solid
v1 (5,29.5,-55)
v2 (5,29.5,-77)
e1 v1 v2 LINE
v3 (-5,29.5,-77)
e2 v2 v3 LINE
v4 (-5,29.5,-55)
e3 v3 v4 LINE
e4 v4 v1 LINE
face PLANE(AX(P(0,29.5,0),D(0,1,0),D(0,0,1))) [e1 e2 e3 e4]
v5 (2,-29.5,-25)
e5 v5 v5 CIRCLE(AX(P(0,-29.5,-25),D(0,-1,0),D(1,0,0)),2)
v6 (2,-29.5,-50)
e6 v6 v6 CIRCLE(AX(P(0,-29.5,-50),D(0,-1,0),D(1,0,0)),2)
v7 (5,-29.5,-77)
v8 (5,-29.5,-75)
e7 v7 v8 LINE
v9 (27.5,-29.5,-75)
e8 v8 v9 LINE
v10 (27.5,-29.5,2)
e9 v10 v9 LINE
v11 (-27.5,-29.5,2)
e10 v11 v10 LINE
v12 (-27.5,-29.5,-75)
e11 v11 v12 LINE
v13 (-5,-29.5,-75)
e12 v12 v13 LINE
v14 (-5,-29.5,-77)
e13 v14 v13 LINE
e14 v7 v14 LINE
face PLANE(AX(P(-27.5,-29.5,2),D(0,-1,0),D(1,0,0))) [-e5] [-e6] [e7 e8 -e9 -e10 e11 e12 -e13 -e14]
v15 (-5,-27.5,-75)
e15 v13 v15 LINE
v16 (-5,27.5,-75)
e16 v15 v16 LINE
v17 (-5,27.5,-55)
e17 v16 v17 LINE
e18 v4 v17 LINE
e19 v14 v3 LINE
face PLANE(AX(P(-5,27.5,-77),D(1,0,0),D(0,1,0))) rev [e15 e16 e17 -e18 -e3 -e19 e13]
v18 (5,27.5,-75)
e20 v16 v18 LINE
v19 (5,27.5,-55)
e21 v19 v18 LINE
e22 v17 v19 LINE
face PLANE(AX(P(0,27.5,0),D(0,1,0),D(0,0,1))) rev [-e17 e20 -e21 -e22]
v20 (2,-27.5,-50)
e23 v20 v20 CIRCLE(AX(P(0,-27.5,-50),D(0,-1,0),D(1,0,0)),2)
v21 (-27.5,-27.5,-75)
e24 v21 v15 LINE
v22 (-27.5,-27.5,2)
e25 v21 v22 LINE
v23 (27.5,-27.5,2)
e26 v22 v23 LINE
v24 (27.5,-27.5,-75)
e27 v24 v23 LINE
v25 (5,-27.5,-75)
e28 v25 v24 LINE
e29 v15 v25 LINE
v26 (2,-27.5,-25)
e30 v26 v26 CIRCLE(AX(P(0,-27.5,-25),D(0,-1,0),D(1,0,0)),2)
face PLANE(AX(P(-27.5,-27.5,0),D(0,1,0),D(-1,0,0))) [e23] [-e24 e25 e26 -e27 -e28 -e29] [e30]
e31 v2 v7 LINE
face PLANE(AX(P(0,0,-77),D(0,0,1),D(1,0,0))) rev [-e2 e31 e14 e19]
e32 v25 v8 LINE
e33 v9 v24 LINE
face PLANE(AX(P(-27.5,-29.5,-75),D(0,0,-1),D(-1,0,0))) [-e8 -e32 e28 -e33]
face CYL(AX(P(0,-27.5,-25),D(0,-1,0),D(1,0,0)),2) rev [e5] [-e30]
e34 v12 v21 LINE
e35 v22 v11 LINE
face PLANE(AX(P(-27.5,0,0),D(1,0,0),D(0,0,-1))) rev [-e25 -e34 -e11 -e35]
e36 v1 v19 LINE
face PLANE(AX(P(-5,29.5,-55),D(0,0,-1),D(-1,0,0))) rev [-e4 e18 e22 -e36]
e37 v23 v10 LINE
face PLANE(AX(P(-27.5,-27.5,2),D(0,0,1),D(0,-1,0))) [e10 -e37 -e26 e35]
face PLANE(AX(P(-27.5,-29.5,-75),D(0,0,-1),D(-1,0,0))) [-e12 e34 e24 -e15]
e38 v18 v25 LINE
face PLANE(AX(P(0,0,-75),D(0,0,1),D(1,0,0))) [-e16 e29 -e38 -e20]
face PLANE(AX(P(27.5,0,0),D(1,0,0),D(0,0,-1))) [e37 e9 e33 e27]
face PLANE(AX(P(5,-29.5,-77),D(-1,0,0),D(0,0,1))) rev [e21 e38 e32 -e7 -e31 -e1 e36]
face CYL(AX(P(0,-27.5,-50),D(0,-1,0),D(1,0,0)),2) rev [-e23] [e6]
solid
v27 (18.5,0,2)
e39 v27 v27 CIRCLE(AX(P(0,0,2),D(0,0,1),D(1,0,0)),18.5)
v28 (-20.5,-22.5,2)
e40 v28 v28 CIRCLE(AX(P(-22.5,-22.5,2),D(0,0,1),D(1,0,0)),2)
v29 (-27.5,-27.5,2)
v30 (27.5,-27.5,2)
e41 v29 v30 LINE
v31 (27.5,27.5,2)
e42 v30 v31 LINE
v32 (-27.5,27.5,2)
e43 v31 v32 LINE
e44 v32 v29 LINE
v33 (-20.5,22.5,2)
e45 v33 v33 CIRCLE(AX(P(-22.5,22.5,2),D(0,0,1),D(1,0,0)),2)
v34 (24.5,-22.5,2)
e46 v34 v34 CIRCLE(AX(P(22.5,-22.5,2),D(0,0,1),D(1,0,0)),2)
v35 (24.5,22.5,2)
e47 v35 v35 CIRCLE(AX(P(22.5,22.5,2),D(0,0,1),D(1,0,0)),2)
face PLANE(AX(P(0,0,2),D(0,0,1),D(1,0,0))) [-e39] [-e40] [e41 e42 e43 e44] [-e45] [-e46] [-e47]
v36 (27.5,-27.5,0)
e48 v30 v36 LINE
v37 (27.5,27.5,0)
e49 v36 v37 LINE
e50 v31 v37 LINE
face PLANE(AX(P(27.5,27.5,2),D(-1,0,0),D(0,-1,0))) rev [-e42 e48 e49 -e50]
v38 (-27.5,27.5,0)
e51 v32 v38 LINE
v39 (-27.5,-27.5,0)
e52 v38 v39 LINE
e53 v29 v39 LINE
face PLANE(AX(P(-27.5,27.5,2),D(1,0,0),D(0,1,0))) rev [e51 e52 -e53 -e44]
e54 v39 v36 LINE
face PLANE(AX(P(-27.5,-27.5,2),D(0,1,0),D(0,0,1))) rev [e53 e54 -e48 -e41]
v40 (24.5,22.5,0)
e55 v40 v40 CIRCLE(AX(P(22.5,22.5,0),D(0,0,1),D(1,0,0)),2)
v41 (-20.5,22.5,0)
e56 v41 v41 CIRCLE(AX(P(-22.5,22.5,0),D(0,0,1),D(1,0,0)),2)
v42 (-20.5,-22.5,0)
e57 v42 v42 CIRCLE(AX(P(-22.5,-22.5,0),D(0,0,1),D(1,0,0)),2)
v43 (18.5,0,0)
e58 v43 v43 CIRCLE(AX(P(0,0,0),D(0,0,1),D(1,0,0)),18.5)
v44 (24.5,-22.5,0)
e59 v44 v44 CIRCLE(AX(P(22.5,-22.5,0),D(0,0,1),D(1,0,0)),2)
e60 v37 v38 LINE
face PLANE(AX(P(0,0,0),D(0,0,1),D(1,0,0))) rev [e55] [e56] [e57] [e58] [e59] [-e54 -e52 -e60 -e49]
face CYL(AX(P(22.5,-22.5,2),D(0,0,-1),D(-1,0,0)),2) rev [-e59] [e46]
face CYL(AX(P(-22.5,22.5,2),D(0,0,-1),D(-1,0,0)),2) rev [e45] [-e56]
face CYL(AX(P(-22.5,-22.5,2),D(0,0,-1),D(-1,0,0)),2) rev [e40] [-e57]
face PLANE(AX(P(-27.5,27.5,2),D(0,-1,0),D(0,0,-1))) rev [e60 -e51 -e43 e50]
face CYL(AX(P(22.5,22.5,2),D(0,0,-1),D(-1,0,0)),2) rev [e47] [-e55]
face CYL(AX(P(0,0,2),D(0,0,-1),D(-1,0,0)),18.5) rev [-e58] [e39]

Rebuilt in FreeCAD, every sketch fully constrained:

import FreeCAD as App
import Part
import Sketcher

V = App.Vector


def add_polygon(sketch, points):
    """Adds a closed chain of lines whose ends are joined by coincident constraints."""
    first, n = sketch.GeometryCount, len(points)
    for a, b in zip(points, points[1:] + points[:1]):
        sketch.addGeometry(Part.LineSegment(App.Vector(*a, 0), App.Vector(*b, 0)), False)
    for i in range(n):
        sketch.addConstraint(Sketcher.Constraint("Coincident", first + i, 2, first + (i + 1) % n, 1))

doc = App.newDocument("Part")
body = doc.addObject("PartDesign::Body", "Body")

sketch1 = body.newObject("Sketcher::SketchObject", "Sketch")
sketch1.AttachmentSupport = (doc.getObject("XY_Plane"), [""])
sketch1.MapMode = "FlatFace"
add_polygon(sketch1, [(-27.5, 27.5), (-27.5, -27.5), (27.5, -27.5), (27.5, 27.5)])
sketch1.addGeometry(Part.Circle(V(-22.5, -22.5, 0), V(0, 0, 1), 2), False)
sketch1.addGeometry(Part.Circle(V(0, 0, 0), V(0, 0, 1), 18.5), False)
sketch1.addGeometry(Part.Circle(V(22.5, -22.5, 0), V(0, 0, 1), 2), False)
sketch1.addGeometry(Part.Circle(V(-22.5, 22.5, 0), V(0, 0, 1), 2), False)
sketch1.addGeometry(Part.Circle(V(22.5, 22.5, 0), V(0, 0, 1), 2), False)
sketch1.addConstraint([
    Sketcher.Constraint("Vertical", 0),
    Sketcher.Constraint("Horizontal", 1),
    Sketcher.Constraint("Vertical", 2),
    Sketcher.Constraint("Horizontal", 3),
    Sketcher.Constraint("Coincident", 5, 3, -1, 1),
    Sketcher.Constraint("Equal", 4, 6),
    Sketcher.Constraint("Equal", 6, 7),
    Sketcher.Constraint("Equal", 7, 8),
    Sketcher.Constraint("Symmetric", 6, 3, 7, 3, -1, 1),
    Sketcher.Constraint("Symmetric", 4, 3, 8, 3, -1, 1),
    Sketcher.Constraint("Symmetric", 0, 2, 2, 2, -1, 1),
    Sketcher.Constraint("Symmetric", 4, 3, 6, 3, -2),
    Sketcher.Constraint("Equal", 3, 0),
    Sketcher.Constraint("Diameter", 4, 4.0),
    Sketcher.Constraint("Diameter", 5, 37.0),
    Sketcher.Constraint("DistanceX", 1, 1, 1, 2, 55.0),
    Sketcher.Constraint("DistanceX", 4, 3, 6, 3, 45.0),
    Sketcher.Constraint("DistanceY", 4, 3, 7, 3, 45.0),
])
pad1 = body.newObject("PartDesign::Pad", "Pad")
pad1.Profile = sketch1
pad1.Length = 2
body2 = doc.addObject("PartDesign::Body", "Body001")

sketch2 = body2.newObject("Sketcher::SketchObject", "Sketch001")
sketch2.AttachmentSupport = (doc.getObject("YZ_Plane001"), [""])
sketch2.MapMode = "FlatFace"
sketch2.AttachmentOffset = App.Placement(V(0, 0, 27.5), App.Rotation())
add_polygon(sketch2, [(-27.5, -75), (-27.5, 2), (-29.5, 2), (-29.5, -75)])
sketch2.addConstraint([
    Sketcher.Constraint("Vertical", 0),
    Sketcher.Constraint("Horizontal", 1),
    Sketcher.Constraint("Vertical", 2),
    Sketcher.Constraint("Horizontal", 3),
    Sketcher.Constraint("DistanceX", 1, 2, 1, 1, 2.0),
    Sketcher.Constraint("DistanceY", 0, 1, 0, 2, 77.0),
    Sketcher.Constraint("DistanceY", -1, 1, 0, 2, 2.0),
    Sketcher.Constraint("DistanceX", 0, 2, -1, 1, 27.5),
])
pad2 = body2.newObject("PartDesign::Pad", "Pad001")
pad2.Profile = sketch2
pad2.Length = 55
pad2.Reversed = True

sketch3 = body2.newObject("Sketcher::SketchObject", "Sketch002")
sketch3.AttachmentSupport = (doc.getObject("XY_Plane001"), [""])
sketch3.MapMode = "FlatFace"
sketch3.AttachmentOffset = App.Placement(V(0, 0, -75), App.Rotation())
add_polygon(sketch3, [(5, -30), (-5, -30), (-5, 28), (5, 28)])
sketch3.addConstraint([
    Sketcher.Constraint("Horizontal", 0),
    Sketcher.Constraint("Vertical", 1),
    Sketcher.Constraint("Horizontal", 2),
    Sketcher.Constraint("Vertical", 3),
    Sketcher.Constraint("DistanceX", 0, 2, 0, 1, 10.0),
    Sketcher.Constraint("DistanceY", 1, 1, 1, 2, 57.0),
    Sketcher.Constraint("DistanceX", 0, 2, -1, 1, 5.0),
    Sketcher.Constraint("DistanceY", 0, 2, -1, 1, 29.5),
])
pad3 = body2.newObject("PartDesign::Pad", "Pad002")
pad3.Profile = sketch3
pad3.Length = 2
pad3.Reversed = True

sketch4 = body2.newObject("Sketcher::SketchObject", "Sketch003")
sketch4.AttachmentSupport = (doc.getObject("XZ_Plane001"), [""])
sketch4.MapMode = "FlatFace"
sketch4.AttachmentOffset = App.Placement(V(0, 0, -27.5), App.Rotation())
add_polygon(sketch4, [(-5, -77), (-5, -55), (5, -55), (5, -77)])
sketch4.addConstraint([
    Sketcher.Constraint("Vertical", 0),
    Sketcher.Constraint("Horizontal", 1),
    Sketcher.Constraint("Vertical", 2),
    Sketcher.Constraint("Horizontal", 3),
    Sketcher.Constraint("DistanceX", 1, 1, 1, 2, 10.0),
    Sketcher.Constraint("DistanceY", 0, 1, 0, 2, 22.0),
    Sketcher.Constraint("DistanceX", 0, 2, -1, 1, 5.0),
    Sketcher.Constraint("DistanceY", 0, 2, -1, 1, 55.0),
])
pad4 = body2.newObject("PartDesign::Pad", "Pad003")
pad4.Profile = sketch4
pad4.Length = 2
pad4.Reversed = True

sketch5 = body2.newObject("Sketcher::SketchObject", "Sketch004")
sketch5.AttachmentSupport = (doc.getObject("XZ_Plane001"), [""])
sketch5.MapMode = "FlatFace"
sketch5.AttachmentOffset = App.Placement(V(0, 0, 29.5), App.Rotation())
sketch5.addGeometry([
    Part.Circle(V(0, -25, 0), V(0, 0, 1), 2),
    Part.Circle(V(0, -50, 0), V(0, 0, 1), 2),
], False)
sketch5.addConstraint([
    Sketcher.Constraint("Equal", 0, 1),
    Sketcher.Constraint("PointOnObject", 0, 3, -2),
    Sketcher.Constraint("PointOnObject", 1, 3, -2),
    Sketcher.Constraint("Diameter", 0, 4.0),
    Sketcher.Constraint("DistanceY", 0, 3, -1, 1, 25.0),
    Sketcher.Constraint("DistanceY", 1, 3, -1, 1, 50.0),
])
pocket1 = body2.newObject("PartDesign::Pocket", "Pocket")
pocket1.Profile = sketch5
pocket1.Length = 2

doc.recompute()
